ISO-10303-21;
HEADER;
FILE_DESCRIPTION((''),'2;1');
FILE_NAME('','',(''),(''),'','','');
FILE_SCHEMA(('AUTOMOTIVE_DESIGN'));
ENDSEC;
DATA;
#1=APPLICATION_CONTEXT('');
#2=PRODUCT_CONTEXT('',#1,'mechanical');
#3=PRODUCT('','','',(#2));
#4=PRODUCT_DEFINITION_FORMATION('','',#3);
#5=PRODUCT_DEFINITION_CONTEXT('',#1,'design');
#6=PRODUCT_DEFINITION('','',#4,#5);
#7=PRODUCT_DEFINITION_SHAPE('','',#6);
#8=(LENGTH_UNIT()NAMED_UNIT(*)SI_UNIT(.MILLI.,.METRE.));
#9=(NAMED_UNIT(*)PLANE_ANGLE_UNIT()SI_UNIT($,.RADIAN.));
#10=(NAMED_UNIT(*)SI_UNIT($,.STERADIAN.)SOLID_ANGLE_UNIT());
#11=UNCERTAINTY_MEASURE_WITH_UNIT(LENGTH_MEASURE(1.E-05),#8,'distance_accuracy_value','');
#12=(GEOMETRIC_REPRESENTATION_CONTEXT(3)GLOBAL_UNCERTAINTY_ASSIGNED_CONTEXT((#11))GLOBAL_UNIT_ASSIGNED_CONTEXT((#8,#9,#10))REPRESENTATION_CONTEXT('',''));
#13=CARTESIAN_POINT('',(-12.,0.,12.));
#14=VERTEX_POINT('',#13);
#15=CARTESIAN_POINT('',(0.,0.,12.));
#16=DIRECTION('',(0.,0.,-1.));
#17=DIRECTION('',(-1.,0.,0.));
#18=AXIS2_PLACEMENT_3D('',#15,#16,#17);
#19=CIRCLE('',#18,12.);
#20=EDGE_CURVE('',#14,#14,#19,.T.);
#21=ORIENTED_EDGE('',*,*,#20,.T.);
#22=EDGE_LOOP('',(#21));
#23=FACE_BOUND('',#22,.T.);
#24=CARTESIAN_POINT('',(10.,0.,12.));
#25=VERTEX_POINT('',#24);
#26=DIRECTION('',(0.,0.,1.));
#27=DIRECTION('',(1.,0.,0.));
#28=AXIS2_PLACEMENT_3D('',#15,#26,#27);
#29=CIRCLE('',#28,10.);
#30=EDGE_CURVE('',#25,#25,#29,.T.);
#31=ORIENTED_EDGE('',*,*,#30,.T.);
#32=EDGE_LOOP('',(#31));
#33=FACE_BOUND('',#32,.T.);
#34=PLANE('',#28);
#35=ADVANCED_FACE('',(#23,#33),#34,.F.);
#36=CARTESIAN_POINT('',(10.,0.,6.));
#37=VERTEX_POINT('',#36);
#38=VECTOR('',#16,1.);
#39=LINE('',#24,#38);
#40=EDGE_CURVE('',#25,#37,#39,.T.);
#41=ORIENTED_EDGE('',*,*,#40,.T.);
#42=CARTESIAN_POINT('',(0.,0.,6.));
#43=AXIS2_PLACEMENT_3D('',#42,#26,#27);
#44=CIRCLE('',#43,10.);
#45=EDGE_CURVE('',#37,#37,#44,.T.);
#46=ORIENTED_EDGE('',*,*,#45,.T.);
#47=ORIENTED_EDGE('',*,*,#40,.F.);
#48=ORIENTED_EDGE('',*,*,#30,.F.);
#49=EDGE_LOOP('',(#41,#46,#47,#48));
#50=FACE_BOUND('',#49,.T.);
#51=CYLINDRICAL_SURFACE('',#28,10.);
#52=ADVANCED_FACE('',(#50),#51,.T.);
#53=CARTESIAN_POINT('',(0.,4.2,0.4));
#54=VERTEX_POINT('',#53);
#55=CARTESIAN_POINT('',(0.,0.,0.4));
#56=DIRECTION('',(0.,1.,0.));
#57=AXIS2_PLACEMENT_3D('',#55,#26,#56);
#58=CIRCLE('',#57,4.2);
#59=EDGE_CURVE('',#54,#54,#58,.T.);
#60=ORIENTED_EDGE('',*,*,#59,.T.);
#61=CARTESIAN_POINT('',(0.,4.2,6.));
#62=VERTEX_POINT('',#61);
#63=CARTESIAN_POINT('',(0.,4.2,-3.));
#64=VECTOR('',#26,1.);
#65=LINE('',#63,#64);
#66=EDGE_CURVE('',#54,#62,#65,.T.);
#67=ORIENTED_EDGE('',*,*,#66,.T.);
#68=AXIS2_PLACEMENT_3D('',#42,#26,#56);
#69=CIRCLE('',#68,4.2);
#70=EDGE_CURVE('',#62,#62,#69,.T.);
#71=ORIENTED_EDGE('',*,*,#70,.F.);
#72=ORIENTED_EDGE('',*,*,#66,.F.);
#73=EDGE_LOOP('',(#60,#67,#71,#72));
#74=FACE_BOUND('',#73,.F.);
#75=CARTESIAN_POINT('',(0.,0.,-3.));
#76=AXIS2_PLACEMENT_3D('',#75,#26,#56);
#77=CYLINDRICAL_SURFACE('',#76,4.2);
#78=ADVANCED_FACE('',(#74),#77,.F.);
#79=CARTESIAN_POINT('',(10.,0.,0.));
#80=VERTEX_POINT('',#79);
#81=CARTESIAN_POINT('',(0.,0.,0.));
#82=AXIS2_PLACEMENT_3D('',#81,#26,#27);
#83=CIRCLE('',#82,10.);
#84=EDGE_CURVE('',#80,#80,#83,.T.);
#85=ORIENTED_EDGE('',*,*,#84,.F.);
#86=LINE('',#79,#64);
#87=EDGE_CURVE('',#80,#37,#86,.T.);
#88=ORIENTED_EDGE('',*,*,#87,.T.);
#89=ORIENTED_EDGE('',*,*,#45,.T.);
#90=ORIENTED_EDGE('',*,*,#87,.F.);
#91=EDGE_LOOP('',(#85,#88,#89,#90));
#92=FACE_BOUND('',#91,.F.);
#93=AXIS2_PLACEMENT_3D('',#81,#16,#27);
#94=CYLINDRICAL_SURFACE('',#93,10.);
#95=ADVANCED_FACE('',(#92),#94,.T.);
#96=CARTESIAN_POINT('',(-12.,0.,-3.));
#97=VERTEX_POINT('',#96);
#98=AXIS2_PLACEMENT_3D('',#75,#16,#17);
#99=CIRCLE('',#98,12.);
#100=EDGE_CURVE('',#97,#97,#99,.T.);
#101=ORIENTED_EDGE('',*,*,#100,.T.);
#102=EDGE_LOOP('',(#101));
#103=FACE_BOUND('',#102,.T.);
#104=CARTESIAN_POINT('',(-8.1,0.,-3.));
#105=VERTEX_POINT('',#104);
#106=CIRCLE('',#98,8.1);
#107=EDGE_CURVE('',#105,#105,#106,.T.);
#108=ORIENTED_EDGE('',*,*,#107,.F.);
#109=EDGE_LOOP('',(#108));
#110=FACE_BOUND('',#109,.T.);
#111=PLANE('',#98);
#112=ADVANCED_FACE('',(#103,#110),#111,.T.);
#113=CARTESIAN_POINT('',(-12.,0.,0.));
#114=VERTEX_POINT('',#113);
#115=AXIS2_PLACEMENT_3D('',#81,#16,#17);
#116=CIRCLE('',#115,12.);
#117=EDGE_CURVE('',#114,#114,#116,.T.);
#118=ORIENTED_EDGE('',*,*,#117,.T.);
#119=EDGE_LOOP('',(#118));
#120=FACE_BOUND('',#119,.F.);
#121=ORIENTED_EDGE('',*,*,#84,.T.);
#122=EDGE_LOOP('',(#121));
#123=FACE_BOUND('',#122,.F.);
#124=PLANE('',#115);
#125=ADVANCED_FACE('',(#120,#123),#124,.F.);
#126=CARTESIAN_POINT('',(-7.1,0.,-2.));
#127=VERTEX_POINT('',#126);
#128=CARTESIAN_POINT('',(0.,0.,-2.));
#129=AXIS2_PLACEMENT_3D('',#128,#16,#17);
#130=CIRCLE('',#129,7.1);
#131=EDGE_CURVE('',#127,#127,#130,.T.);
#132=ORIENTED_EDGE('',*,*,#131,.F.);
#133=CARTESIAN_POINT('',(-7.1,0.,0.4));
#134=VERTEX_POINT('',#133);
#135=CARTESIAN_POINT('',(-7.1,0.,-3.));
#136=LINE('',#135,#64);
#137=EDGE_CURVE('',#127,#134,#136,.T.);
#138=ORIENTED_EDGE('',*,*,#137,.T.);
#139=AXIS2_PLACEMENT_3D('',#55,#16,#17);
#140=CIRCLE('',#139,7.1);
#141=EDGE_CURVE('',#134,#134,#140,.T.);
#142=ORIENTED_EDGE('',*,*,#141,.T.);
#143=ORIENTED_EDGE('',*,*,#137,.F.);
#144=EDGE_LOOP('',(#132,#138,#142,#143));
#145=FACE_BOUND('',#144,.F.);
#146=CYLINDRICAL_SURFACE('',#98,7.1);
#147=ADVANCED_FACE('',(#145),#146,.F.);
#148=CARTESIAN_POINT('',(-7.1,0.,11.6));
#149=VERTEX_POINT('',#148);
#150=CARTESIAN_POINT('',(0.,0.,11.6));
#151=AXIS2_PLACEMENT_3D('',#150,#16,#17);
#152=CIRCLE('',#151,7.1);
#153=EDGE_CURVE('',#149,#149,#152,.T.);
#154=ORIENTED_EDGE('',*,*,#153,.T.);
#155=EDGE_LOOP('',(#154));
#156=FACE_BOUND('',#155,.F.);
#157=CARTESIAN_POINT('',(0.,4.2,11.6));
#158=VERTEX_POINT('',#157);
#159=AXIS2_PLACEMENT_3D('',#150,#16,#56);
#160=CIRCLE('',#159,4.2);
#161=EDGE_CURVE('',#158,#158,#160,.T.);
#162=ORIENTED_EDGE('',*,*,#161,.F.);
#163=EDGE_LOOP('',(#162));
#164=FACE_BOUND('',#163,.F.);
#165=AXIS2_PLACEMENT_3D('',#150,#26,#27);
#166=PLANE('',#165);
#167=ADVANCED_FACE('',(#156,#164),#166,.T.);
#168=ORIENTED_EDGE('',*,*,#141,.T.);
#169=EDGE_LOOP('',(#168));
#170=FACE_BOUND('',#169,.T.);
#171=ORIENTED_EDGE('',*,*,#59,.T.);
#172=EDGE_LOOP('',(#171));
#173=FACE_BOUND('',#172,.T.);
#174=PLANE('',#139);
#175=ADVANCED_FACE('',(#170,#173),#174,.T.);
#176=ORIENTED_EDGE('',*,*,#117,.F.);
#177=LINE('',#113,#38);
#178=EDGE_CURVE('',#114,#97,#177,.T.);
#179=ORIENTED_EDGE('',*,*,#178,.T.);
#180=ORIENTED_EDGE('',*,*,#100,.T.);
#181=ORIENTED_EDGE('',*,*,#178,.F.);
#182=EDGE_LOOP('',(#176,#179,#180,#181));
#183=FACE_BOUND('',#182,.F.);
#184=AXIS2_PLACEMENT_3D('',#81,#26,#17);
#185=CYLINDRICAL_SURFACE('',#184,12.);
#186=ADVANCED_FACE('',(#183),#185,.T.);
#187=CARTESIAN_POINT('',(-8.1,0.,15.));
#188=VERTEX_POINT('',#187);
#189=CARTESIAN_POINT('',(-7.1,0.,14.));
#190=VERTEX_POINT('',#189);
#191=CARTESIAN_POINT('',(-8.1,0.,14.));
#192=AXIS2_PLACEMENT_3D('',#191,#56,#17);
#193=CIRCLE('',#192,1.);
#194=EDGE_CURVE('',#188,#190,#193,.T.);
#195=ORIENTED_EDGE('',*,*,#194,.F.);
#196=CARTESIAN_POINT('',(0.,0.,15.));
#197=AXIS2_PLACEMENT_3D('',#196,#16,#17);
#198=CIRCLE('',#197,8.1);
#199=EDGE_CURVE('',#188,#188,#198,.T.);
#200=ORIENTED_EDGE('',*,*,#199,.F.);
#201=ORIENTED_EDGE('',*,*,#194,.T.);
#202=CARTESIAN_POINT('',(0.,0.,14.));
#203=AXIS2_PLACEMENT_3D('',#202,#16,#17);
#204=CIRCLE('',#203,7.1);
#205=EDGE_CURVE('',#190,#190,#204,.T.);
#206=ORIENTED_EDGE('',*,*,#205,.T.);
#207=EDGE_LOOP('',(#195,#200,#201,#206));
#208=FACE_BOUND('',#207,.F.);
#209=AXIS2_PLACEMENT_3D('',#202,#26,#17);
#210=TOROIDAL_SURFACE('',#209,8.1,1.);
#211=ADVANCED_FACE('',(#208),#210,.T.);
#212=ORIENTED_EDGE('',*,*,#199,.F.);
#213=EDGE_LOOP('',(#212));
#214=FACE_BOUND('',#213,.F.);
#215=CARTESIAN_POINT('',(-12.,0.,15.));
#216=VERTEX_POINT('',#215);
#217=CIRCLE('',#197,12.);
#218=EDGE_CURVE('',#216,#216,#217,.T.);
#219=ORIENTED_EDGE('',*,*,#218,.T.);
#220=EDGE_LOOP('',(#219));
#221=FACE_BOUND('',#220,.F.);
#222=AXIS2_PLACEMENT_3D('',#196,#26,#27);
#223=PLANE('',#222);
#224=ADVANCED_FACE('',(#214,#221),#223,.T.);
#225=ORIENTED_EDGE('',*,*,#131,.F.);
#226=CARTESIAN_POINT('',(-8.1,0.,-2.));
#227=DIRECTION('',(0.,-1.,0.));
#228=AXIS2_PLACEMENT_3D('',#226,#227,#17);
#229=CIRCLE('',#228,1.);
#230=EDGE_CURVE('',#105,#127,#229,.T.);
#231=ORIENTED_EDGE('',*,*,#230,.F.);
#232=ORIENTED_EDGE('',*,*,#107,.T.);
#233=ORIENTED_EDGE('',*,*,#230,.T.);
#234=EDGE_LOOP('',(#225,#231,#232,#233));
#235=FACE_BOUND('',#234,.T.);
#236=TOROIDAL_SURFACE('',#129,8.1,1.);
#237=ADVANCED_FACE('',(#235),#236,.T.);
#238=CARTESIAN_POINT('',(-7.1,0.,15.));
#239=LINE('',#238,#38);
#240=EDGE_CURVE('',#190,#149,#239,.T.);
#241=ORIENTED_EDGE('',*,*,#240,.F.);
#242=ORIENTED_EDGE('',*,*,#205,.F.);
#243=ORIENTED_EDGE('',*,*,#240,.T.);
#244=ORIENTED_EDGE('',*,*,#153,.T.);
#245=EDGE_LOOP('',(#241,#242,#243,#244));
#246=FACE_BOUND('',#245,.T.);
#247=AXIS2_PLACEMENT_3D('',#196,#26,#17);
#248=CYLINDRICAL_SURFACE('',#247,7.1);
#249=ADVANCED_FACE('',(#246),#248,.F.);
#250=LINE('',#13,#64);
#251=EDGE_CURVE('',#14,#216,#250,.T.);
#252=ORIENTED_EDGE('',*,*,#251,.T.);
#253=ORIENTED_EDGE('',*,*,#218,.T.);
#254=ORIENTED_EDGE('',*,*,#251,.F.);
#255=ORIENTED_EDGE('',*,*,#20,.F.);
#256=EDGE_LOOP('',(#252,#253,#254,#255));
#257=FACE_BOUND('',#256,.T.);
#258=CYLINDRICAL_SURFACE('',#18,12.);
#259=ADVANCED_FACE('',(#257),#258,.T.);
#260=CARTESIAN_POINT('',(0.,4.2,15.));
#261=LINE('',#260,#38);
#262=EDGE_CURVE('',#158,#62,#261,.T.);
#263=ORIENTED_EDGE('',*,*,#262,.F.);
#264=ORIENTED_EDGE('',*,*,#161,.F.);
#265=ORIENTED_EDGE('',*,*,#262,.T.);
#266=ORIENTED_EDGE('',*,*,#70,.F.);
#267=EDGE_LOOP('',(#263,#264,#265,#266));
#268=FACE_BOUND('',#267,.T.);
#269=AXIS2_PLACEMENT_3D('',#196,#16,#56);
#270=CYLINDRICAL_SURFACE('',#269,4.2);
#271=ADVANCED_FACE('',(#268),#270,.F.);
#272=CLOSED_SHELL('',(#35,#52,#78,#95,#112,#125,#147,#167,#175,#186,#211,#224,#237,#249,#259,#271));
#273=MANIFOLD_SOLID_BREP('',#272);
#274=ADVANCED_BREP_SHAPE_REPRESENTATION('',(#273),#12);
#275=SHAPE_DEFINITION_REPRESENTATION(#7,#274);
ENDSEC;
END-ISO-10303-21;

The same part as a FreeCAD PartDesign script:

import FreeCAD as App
import Part
import Sketcher

V = App.Vector


def edges_at(feature, points):
    """Names of the edges that pass closest to the given points."""
    edges = feature.Shape.Edges
    near = lambda p: min(range(len(edges)), key=lambda i: edges[i].distToShape(Part.Vertex(*p))[0])
    return sorted({f"Edge{near(p) + 1}" for p in points})

doc = App.newDocument("Part")
params = doc.addObject("Spreadsheet::Sheet", "Params")
for row, (alias, value) in enumerate([
    ("sketch1_diameter", "20 mm"),
    ("pad1_length", "6 mm"),
    ("sketch2_diameter", "24 mm"),
    ("pad2_length", "3 mm"),
    ("sketch3_diameter", "8.4 mm"),
    ("hole_diameter", "8.4 mm"),
    ("sketch4_diameter", "14.2 mm"),
    ("pocket1_length", "3.4 mm"),
    ("fillet_radius", "1 mm"),
], start=1):
    params.set(f"A{row}", alias)
    params.set(f"B{row}", "=" + value)
    params.setAlias(f"B{row}", alias)

body = doc.addObject("PartDesign::Body", "Body")

# Sketch on XY plane
sketch1 = doc.addObject("Sketcher::SketchObject", "Sketch")
body.addObject(sketch1)
sketch1.AttachmentSupport = (doc.XY_Plane, [""])
sketch1.MapMode = "FlatFace"
sketch1.addGeometry(Part.Circle(V(0, 0, 0), V(0, 0, 1), 10), False)
sketch1.addConstraint(Sketcher.Constraint("Coincident", 0, 3, -1, 1))
sketch1.addConstraint(Sketcher.Constraint("Diameter", 0, 20.0))
sketch1.setExpression("Constraints[1]", "Params.sketch1_diameter")
pad1 = doc.addObject("PartDesign::Pad", "Pad")
body.addObject(pad1)
pad1.Profile = sketch1
pad1.setExpression("Length", "Params.pad1_length")

# Sketch on XY plane
sketch2 = doc.addObject("Sketcher::SketchObject", "Sketch001")
body.addObject(sketch2)
sketch2.AttachmentSupport = (doc.XY_Plane, [""])
sketch2.MapMode = "FlatFace"
sketch2.addGeometry(Part.Circle(V(0, 0, 0), V(0, 0, 1), 12), False)
sketch2.addConstraint(Sketcher.Constraint("Coincident", 0, 3, -1, 1))
sketch2.addConstraint(Sketcher.Constraint("Diameter", 0, 24.0))
sketch2.setExpression("Constraints[1]", "Params.sketch2_diameter")
pad2 = doc.addObject("PartDesign::Pad", "Pad001")
body.addObject(pad2)
pad2.Profile = sketch2
pad2.setExpression("Length", "Params.pad2_length")
pad2.Reversed = True

# Sketch on XY plane
sketch3 = doc.addObject("Sketcher::SketchObject", "Sketch002")
body.addObject(sketch3)
sketch3.AttachmentSupport = (doc.XY_Plane, [""])
sketch3.MapMode = "FlatFace"
sketch3.AttachmentOffset = App.Placement(V(0, 0, -3), App.Rotation())
sketch3.addGeometry(Part.Circle(V(0, 0, 0), V(0, 0, 1), 4.2), False)
sketch3.addConstraint(Sketcher.Constraint("Coincident", 0, 3, -1, 1))
sketch3.addConstraint(Sketcher.Constraint("Diameter", 0, 8.4))
sketch3.setExpression("Constraints[1]", "Params.sketch3_diameter")
doc.recompute()
hole = doc.addObject("PartDesign::Hole", "Hole")
body.addObject(hole)
hole.Profile = sketch3
hole.ThreadType = "None"
hole.setExpression("Diameter", "Params.hole_diameter")
hole.DepthType = "ThroughAll"
hole.Reversed = True

# Sketch on XY plane
sketch4 = doc.addObject("Sketcher::SketchObject", "Sketch003")
body.addObject(sketch4)
sketch4.AttachmentSupport = (doc.XY_Plane, [""])
sketch4.MapMode = "FlatFace"
sketch4.AttachmentOffset = App.Placement(V(0, 0, -3), App.Rotation())
sketch4.addGeometry(Part.Circle(V(0, 0, 0), V(0, 0, 1), 7), False)
sketch4.addConstraint(Sketcher.Constraint("Coincident", 0, 3, -1, 1))
sketch4.addConstraint(Sketcher.Constraint("Diameter", 0, 14.2))
sketch4.setExpression("Constraints[1]", "Params.sketch4_diameter")
pocket1 = doc.addObject("PartDesign::Pocket", "Pocket")
body.addObject(pocket1)
pocket1.Profile = sketch4
pocket1.setExpression("Length", "Params.pocket1_length")
pocket1.Reversed = True
doc.recompute()

datumplane = doc.addObject("PartDesign::Plane", "DatumPlane")
body.addObject(datumplane)
datumplane.AttachmentSupport = (doc.XY_Plane, [""])
datumplane.MapMode = "FlatFace"
datumplane.AttachmentOffset = App.Placement(V(0, 0, 6), App.Rotation())
mirrored = doc.addObject("PartDesign::Mirrored", "Mirrored")
body.addObject(mirrored)
mirrored.Originals = [pad1, pad2, hole, pocket1]
mirrored.MirrorPlane = (datumplane, [""])
body.Tip = mirrored
doc.recompute()

fillet = doc.addObject("PartDesign::Fillet", "Fillet")
body.addObject(fillet)
fillet.Base = (mirrored, edges_at(mirrored, [(7.1, 0, 15), (7.1, 0, -3)]))
fillet.setExpression("Radius", "Params.fillet_radius")

doc.recompute()
